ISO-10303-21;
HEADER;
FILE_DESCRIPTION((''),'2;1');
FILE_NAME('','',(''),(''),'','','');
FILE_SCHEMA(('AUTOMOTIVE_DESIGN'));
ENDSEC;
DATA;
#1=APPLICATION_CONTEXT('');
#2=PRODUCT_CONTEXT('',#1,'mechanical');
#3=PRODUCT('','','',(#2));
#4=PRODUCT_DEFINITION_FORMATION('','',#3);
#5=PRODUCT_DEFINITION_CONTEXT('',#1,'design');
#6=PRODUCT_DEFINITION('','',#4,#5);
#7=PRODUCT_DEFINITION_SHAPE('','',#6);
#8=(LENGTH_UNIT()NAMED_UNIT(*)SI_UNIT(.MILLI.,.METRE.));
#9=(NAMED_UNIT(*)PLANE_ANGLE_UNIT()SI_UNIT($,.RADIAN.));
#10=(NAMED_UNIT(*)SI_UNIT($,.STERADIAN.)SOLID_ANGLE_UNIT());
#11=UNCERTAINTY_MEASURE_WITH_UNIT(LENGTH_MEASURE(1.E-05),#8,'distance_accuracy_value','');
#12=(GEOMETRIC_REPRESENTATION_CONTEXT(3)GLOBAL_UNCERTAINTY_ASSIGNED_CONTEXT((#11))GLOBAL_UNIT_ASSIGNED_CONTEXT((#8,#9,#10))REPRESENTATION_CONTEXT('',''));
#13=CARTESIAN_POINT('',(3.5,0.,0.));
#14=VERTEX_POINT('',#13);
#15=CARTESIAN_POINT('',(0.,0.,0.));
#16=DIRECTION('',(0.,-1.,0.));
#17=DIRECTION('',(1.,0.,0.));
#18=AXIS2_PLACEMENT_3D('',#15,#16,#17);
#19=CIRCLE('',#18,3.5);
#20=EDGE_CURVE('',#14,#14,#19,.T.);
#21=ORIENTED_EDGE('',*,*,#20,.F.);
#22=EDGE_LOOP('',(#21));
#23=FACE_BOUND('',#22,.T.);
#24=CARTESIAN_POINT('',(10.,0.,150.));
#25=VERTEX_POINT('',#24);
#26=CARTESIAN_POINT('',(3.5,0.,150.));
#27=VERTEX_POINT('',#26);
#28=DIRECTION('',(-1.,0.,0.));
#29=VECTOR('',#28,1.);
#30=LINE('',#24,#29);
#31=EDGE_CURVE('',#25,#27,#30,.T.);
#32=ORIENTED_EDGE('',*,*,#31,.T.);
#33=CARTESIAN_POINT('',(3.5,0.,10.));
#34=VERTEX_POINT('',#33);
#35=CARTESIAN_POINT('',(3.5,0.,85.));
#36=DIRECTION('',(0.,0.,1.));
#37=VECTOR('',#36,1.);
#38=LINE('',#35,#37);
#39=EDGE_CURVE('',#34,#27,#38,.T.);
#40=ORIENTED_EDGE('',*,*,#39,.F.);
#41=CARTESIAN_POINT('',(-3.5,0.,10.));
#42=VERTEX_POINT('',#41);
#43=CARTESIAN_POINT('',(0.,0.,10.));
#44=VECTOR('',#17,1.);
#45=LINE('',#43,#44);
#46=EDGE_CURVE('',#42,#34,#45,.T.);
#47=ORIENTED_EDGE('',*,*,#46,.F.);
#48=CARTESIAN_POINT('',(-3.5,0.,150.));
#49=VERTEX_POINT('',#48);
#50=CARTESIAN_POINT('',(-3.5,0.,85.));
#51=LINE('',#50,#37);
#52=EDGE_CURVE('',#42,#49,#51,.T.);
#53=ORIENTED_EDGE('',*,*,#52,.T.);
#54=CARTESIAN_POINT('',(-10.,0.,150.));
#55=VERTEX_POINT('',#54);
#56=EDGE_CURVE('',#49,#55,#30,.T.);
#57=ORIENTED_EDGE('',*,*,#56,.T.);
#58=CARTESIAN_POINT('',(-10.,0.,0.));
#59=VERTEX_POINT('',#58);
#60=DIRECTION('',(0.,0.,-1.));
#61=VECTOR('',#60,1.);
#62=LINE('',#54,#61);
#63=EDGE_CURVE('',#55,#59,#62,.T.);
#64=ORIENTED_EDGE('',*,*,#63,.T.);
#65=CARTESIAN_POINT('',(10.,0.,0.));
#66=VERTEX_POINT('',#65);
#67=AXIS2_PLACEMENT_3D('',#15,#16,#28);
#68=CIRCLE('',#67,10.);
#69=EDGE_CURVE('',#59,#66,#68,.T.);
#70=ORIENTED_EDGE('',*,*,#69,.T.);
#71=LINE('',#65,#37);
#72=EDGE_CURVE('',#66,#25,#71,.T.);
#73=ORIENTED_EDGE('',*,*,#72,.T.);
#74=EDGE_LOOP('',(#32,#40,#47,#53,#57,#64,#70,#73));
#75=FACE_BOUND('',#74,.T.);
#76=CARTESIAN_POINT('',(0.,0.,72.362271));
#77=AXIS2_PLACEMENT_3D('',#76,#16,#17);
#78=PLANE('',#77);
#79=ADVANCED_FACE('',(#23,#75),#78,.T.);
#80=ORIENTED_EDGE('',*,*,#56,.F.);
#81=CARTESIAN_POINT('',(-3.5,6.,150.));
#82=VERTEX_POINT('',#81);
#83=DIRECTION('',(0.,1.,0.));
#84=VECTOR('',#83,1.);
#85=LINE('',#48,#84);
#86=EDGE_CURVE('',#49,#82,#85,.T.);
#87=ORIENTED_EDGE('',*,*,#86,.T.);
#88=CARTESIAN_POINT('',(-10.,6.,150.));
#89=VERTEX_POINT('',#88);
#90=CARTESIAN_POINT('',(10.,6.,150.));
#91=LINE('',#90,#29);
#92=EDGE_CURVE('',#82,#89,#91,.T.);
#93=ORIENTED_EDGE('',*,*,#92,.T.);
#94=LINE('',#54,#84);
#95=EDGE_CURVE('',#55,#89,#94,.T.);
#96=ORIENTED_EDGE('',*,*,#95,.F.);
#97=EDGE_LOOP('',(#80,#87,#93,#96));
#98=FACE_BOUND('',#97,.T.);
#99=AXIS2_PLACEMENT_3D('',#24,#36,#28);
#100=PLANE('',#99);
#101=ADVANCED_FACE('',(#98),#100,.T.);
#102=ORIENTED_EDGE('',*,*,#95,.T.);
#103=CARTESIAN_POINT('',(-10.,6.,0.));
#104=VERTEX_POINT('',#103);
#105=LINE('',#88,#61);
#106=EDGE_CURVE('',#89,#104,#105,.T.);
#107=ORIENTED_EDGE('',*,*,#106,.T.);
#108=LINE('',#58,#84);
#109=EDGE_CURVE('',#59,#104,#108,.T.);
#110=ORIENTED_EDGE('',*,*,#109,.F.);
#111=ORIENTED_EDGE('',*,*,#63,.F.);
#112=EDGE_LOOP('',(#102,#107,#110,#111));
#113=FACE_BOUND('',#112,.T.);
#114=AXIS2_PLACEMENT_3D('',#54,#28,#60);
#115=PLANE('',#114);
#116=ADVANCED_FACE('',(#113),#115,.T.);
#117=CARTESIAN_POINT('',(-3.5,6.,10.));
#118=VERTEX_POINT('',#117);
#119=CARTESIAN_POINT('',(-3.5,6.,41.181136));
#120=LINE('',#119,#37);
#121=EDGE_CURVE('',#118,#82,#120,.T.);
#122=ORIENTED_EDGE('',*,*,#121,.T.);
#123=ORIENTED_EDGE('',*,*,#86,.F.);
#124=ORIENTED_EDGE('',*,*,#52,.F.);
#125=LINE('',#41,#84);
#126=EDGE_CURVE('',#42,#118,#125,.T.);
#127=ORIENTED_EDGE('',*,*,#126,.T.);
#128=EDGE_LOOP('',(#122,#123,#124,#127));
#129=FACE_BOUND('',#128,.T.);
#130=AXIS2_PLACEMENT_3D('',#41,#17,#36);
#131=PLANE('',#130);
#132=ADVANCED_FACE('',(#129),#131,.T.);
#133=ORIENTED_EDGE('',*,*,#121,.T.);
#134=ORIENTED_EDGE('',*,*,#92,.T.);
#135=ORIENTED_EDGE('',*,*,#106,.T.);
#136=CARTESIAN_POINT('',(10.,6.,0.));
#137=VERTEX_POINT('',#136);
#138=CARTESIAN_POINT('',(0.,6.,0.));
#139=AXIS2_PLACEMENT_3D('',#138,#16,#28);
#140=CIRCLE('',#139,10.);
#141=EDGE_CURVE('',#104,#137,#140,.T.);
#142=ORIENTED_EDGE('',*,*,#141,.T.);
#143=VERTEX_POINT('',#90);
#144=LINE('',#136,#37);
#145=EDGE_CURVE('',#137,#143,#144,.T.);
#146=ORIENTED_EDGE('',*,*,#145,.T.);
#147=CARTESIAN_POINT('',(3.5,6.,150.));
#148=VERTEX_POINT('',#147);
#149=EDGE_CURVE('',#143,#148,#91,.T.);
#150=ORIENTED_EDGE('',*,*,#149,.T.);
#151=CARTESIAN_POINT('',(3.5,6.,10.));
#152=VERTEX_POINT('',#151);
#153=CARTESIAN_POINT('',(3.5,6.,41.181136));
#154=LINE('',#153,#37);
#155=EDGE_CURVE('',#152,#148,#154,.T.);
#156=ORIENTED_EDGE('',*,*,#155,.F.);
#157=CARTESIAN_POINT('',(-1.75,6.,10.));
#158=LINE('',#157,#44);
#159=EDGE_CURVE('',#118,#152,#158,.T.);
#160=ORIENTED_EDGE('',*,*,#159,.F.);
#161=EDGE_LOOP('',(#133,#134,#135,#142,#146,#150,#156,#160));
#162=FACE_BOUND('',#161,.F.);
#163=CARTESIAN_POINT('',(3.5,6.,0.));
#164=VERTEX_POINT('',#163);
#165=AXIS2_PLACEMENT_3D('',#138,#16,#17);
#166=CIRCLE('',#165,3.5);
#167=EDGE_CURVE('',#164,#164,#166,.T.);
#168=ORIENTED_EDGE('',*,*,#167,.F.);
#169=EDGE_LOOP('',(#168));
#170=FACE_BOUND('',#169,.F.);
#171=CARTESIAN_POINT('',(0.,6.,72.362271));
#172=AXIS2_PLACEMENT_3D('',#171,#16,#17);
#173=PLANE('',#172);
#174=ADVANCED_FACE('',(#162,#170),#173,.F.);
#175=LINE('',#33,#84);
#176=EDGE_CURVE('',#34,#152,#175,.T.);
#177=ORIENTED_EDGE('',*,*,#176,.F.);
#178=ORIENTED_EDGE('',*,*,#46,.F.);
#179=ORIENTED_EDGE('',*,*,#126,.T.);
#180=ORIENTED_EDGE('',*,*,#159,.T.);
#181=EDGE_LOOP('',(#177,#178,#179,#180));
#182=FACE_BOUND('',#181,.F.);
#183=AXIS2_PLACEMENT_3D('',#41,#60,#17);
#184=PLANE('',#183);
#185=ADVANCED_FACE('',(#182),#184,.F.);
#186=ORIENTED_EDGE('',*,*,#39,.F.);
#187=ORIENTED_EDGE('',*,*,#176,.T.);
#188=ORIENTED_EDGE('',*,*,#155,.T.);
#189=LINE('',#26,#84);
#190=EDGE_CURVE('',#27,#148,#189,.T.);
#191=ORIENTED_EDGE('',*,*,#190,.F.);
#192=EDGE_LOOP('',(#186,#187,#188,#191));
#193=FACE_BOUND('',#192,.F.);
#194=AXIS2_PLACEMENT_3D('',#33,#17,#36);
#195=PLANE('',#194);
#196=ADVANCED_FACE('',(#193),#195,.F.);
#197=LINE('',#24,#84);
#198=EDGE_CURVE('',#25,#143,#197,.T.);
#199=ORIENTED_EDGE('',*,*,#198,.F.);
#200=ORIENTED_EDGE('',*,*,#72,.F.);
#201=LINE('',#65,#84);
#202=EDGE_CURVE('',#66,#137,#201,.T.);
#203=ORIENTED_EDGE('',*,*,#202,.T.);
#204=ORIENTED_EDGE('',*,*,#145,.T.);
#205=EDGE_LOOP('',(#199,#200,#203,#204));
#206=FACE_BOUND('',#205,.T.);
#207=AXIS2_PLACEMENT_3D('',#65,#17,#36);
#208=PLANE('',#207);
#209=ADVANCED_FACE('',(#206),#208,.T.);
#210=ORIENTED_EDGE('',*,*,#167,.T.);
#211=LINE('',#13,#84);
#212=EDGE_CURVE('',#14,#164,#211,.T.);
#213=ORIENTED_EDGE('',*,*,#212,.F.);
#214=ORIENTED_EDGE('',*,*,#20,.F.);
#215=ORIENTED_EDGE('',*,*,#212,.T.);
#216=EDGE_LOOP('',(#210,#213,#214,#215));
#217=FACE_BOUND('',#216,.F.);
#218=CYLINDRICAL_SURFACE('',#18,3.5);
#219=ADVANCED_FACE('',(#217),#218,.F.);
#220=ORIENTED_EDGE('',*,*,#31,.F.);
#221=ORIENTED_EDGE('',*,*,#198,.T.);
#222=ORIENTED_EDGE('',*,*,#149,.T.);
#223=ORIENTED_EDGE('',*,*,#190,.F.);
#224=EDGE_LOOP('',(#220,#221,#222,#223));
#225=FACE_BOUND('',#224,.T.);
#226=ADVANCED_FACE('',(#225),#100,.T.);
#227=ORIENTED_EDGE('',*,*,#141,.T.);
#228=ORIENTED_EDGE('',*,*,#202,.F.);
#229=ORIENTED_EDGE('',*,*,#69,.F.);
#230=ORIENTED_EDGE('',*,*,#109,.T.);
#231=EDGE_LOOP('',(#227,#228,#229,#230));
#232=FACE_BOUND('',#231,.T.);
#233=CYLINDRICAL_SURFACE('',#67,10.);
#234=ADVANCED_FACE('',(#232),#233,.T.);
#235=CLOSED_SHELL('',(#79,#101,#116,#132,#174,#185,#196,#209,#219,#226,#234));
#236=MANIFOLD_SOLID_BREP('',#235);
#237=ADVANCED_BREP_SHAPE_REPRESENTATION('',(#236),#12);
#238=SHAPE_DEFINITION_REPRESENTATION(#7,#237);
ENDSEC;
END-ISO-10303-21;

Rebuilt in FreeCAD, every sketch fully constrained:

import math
import FreeCAD as App
import Part
import Sketcher

V = App.Vector
Q = App.Units.Quantity


def add_polygon(sketch, points):
    """Adds a closed chain of lines whose ends are joined by coincident constraints."""
    first, n = sketch.GeometryCount, len(points)
    for a, b in zip(points, points[1:] + points[:1]):
        sketch.addGeometry(Part.LineSegment(App.Vector(*a, 0), App.Vector(*b, 0)), False)
    for i in range(n):
        sketch.addConstraint(Sketcher.Constraint("Coincident", first + i, 2, first + (i + 1) % n, 1))

doc = App.newDocument("Part")
body = doc.addObject("PartDesign::Body", "Body")

sketch1 = body.newObject("Sketcher::SketchObject", "Sketch")
sketch1.AttachmentSupport = (doc.getObject("XZ_Plane"), [""])
sketch1.MapMode = "FlatFace"
sketch1.addGeometry(Part.LineSegment(V(-10, 150, 0), V(-10, 0, 0)), False)
sketch1.addGeometry(Part.ArcOfCircle(Part.Circle(V(0, 0, 0), V(0, 0, 1), 10), math.radians(180), math.radians(360)), False)
sketch1.addGeometry(Part.LineSegment(V(10, 0, 0), V(10, 150, 0)), False)
sketch1.addGeometry(Part.LineSegment(V(10, 150, 0), V(-10, 150, 0)), False)
sketch1.addGeometry(Part.Circle(V(0, 0, 0), V(0, 0, 1), 3.5), False)
sketch1.addConstraint(Sketcher.Constraint("Tangent", 0, 2, 1, 1))
sketch1.addConstraint(Sketcher.Constraint("Tangent", 1, 2, 2, 1))
sketch1.addConstraint(Sketcher.Constraint("Coincident", 2, 2, 3, 1))
sketch1.addConstraint(Sketcher.Constraint("Coincident", 3, 2, 0, 1))
sketch1.addConstraint(Sketcher.Constraint("Vertical", 0))
sketch1.addConstraint(Sketcher.Constraint("Vertical", 2))
sketch1.addConstraint(Sketcher.Constraint("Horizontal", 3))
sketch1.addConstraint(Sketcher.Constraint("Coincident", 1, 3, -1, 1))
sketch1.addConstraint(Sketcher.Constraint("Coincident", 4, 3, -1, 1))
sketch1.addConstraint(Sketcher.Constraint("Diameter", 4, Q("7 mm")))
sketch1.addConstraint(Sketcher.Constraint("Radius", 1, Q("10 mm")))
sketch1.addConstraint(Sketcher.Constraint("DistanceY", 0, 2, 0, 1, Q("150 mm")))
pad1 = body.newObject("PartDesign::Pad", "Pad")
pad1.Profile = sketch1
pad1.Length = 6
pad1.Reversed = True

sketch2 = body.newObject("Sketcher::SketchObject", "Sketch001")
sketch2.AttachmentSupport = (doc.getObject("XZ_Plane"), [""])
sketch2.MapMode = "FlatFace"
add_polygon(sketch2, [(-4, 160), (-4, 10), (4, 10), (4, 160)])
sketch2.addConstraint(Sketcher.Constraint("Vertical", 0))
sketch2.addConstraint(Sketcher.Constraint("Horizontal", 1))
sketch2.addConstraint(Sketcher.Constraint("Vertical", 2))
sketch2.addConstraint(Sketcher.Constraint("Horizontal", 3))
sketch2.addConstraint(Sketcher.Constraint("DistanceX", 1, 1, 1, 2, Q("7 mm")))
sketch2.addConstraint(Sketcher.Constraint("DistanceY", 0, 2, 0, 1, Q("150 mm")))
sketch2.addConstraint(Sketcher.Constraint("DistanceY", -1, 1, 0, 2, Q("10 mm")))
sketch2.addConstraint(Sketcher.Constraint("DistanceX", 0, 2, -1, 1, Q("3.5 mm")))
pocket1 = body.newObject("PartDesign::Pocket", "Pocket")
pocket1.Profile = sketch2
pocket1.Length = 25

doc.recompute()
